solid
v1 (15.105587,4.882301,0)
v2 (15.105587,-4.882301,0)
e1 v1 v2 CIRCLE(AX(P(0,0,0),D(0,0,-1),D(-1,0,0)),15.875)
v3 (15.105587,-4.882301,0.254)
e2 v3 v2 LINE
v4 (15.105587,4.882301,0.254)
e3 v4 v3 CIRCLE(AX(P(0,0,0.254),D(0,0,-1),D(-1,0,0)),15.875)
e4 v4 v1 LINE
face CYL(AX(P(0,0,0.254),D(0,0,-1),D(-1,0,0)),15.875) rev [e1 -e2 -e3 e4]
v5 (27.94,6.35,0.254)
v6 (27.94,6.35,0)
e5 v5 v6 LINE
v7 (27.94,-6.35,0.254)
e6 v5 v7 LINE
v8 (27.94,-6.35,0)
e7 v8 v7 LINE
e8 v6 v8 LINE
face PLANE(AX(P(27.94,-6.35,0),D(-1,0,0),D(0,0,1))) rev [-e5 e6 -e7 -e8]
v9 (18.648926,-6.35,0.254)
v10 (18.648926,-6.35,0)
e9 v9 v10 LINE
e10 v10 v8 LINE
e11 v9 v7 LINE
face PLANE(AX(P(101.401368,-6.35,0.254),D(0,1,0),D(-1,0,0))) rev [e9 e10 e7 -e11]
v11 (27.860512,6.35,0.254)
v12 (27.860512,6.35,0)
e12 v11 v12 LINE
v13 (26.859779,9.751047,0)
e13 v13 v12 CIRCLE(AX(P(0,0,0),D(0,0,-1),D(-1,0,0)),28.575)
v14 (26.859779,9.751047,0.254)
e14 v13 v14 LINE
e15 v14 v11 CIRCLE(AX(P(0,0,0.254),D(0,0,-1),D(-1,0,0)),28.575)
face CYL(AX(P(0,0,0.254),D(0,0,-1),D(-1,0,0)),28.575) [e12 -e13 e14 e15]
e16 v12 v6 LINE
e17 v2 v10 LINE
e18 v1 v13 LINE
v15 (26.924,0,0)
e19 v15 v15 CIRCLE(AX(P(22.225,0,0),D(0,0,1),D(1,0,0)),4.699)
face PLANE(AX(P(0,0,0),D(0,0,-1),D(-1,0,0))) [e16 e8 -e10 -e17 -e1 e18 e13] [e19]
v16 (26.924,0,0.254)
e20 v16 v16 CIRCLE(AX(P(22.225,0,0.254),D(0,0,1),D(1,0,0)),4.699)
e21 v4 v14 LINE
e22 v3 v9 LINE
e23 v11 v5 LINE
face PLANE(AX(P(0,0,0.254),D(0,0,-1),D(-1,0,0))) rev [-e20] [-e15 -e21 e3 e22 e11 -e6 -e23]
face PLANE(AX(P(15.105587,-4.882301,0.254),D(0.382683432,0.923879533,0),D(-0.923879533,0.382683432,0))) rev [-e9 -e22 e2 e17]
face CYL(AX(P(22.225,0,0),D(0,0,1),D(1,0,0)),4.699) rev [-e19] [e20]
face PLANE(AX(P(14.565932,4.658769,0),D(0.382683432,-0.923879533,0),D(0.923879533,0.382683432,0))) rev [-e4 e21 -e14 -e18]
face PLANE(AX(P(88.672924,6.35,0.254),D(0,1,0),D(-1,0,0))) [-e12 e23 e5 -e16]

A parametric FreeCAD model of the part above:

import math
import FreeCAD as App
import Part
import Sketcher
Q = App.Units.Quantity


def add_polygon(sketch, points):
    """Adds a closed chain of lines whose ends are joined by coincident constraints."""
    first, n = sketch.GeometryCount, len(points)
    for a, b in zip(points, points[1:] + points[:1]):
        sketch.addGeometry(Part.LineSegment(App.Vector(*a, 0), App.Vector(*b, 0)), False)
    for i in range(n):
        sketch.addConstraint(Sketcher.Constraint("Coincident", first + i, 2, first + (i + 1) % n, 1))

doc = App.newDocument("Part")
body = doc.addObject("PartDesign::Body", "Body")

sketch1 = body.newObject("Sketcher::SketchObject", "Sketch")
sketch1.AttachmentSupport = (doc.getObject("XY_Plane"), [""])
sketch1.MapMode = "FlatFace"
sketch1.addGeometry([
    Part.LineSegment(App.Vector(67.2, 76.2, 0), App.Vector(8.7, 17.7, 0)),
    Part.LineSegment(App.Vector(8.7, 17.7, 0), App.Vector(7.2, 14.1, 0)),
    Part.ArcOfCircle(Part.Circle(App.Vector(0, 0, 0), App.Vector(0, 0, 1), 15.9), math.radians(-18), math.radians(63)),
    Part.LineSegment(App.Vector(15.1, -4.9, 0), App.Vector(18.6, -6.3, 0)),
    Part.LineSegment(App.Vector(18.6, -6.3, 0), App.Vector(101.4, -6.3, 0)),
    Part.ArcOfCircle(Part.Circle(App.Vector(0, 0, 0), App.Vector(0, 0, 1), 101.6), math.radians(-4), math.radians(49)),
    Part.ArcOfCircle(Part.Circle(App.Vector(0, 0, 0), App.Vector(0, 0, 1), 88.9), math.radians(4), math.radians(41)),
    Part.LineSegment(App.Vector(88.7, 6.3, 0), App.Vector(27.9, 6.3, 0)),
    Part.ArcOfCircle(Part.Circle(App.Vector(0, 0, 0), App.Vector(0, 0, 1), 28.6), math.radians(12.84), math.radians(32.16)),
    Part.LineSegment(App.Vector(24.2, 15.2, 0), App.Vector(67.2, 58.2, 0)),
], False)
sketch1.addConstraint([
    Sketcher.Constraint("Coincident", 0, 2, 1, 1),
    Sketcher.Constraint("Coincident", 1, 2, 2, 2),
    Sketcher.Constraint("Coincident", 2, 1, 3, 1),
    Sketcher.Constraint("Coincident", 3, 2, 4, 1),
    Sketcher.Constraint("Coincident", 4, 2, 5, 1),
    Sketcher.Constraint("Coincident", 5, 2, 0, 1),
    Sketcher.Constraint("Coincident", 6, 1, 7, 1),
    Sketcher.Constraint("Coincident", 7, 2, 8, 1),
    Sketcher.Constraint("Coincident", 8, 2, 9, 1),
    Sketcher.Constraint("Coincident", 9, 2, 6, 2),
    Sketcher.Constraint("Horizontal", 4),
    Sketcher.Constraint("Horizontal", 7),
    Sketcher.Constraint("Coincident", 2, 3, -1, 1),
    Sketcher.Constraint("Coincident", 5, 3, -1, 1),
    Sketcher.Constraint("Coincident", 6, 3, -1, 1),
    Sketcher.Constraint("Coincident", 8, 3, -1, 1),
    Sketcher.Constraint("Perpendicular", 1, 3),
    Sketcher.Constraint("Parallel", 0, 9),
    Sketcher.Constraint("Equal", 1, 3),
    Sketcher.Constraint("Radius", 5, Q("4 in")),
    Sketcher.Constraint("Radius", 6, Q("3.5 in")),
    Sketcher.Constraint("Angle", 0, Q("-135 deg")),
    Sketcher.Constraint("Radius", 2, Q("0.625 in")),
    Sketcher.Constraint("Radius", 8, Q("1.125 in")),
    Sketcher.Constraint("Angle", 1, Q("-112.5 deg")),
    Sketcher.Constraint("DistanceY", 4, 2, 6, 1, Q("0.5 in")),
    Sketcher.Constraint("DistanceY", 3, 2, -1, 1, Q("0.25 in")),
    Sketcher.Constraint("DistanceY", 2, 1, -1, 1, 4.882301),
    Sketcher.Constraint("DistanceY", -1, 1, 9, 2, 58.211098),
    Sketcher.Constraint("DistanceX", 5, 2, 4, 2, 34.189901),
])
pad1 = body.newObject("PartDesign::Pad", "Pad")
pad1.Profile = sketch1
pad1.Length = Q("0.01 in")

sketch2 = body.newObject("Sketcher::SketchObject", "Sketch001")
sketch2.AttachmentSupport = (doc.getObject("XY_Plane"), [""])
sketch2.MapMode = "FlatFace"
sketch2.AttachmentOffset = App.Placement(App.Vector(0, 0, 0.01 * 25.4), App.Rotation())
sketch2.addGeometry([
    Part.Circle(App.Vector(22.2, 0, 0), App.Vector(0, 0, 1), 4.7),
    Part.Circle(App.Vector(36.2, 0, 0), App.Vector(0, 0, 1), 4.7),
    Part.Circle(App.Vector(61.7, 0, 0), App.Vector(0, 0, 1), 4.7),
    Part.Circle(App.Vector(75.7, 0, 0), App.Vector(0, 0, 1), 4.7),
    Part.Circle(App.Vector(95.2, 0, 0), App.Vector(0, 0, 1), 4.7),
    Part.Circle(App.Vector(15.7, 15.7, 0), App.Vector(0, 0, 1), 4.7),
    Part.Circle(App.Vector(25.6, 25.6, 0), App.Vector(0, 0, 1), 4.7),
    Part.Circle(App.Vector(43.6, 43.6, 0), App.Vector(0, 0, 1), 4.7),
    Part.Circle(App.Vector(53.5, 53.5, 0), App.Vector(0, 0, 1), 4.7),
    Part.Circle(App.Vector(92, 24.7, 0), App.Vector(0, 0, 1), 4.7),
    Part.Circle(App.Vector(82.5, 47.6, 0), App.Vector(0, 0, 1), 4.7),
    Part.Circle(App.Vector(67.4, 67.4, 0), App.Vector(0, 0, 1), 4.7),
], False)
sketch2.addConstraint([
    Sketcher.Constraint("Equal", 0, 1),
    Sketcher.Constraint("Equal", 1, 2),
    Sketcher.Constraint("Equal", 2, 3),
    Sketcher.Constraint("Equal", 3, 4),
    Sketcher.Constraint("Equal", 4, 5),
    Sketcher.Constraint("Equal", 5, 6),
    Sketcher.Constraint("Equal", 6, 7),
    Sketcher.Constraint("Equal", 7, 8),
    Sketcher.Constraint("Equal", 8, 9),
    Sketcher.Constraint("Equal", 9, 10),
    Sketcher.Constraint("Equal", 10, 11),
    Sketcher.Constraint("PointOnObject", 0, 3, -1),
    Sketcher.Constraint("PointOnObject", 1, 3, -1),
    Sketcher.Constraint("PointOnObject", 2, 3, -1),
    Sketcher.Constraint("PointOnObject", 3, 3, -1),
    Sketcher.Constraint("PointOnObject", 4, 3, -1),
    Sketcher.Constraint("Diameter", 0, Q("0.37 in")),
    Sketcher.Constraint("DistanceX", -1, 1, 2, 3, Q("2.43 in")),
    Sketcher.Constraint("DistanceX", -1, 1, 3, 3, Q("2.98 in")),
    Sketcher.Constraint("DistanceX", -1, 1, 4, 3, Q("3.75 in")),
    Sketcher.Constraint("DistanceX", 0, 3, 1, 3, Q("0.55 in")),
    Sketcher.Constraint("DistanceX", -1, 1, 0, 3, Q("0.875 in")),
    Sketcher.Constraint("DistanceY", -1, 1, 10, 3, Q("1.875 in")),
    Sketcher.Constraint("DistanceX", 11, 3, 10, 3, 15.136999),
    Sketcher.Constraint("DistanceX", -1, 1, 5, 3, 15.715448),
    Sketcher.Constraint("DistanceY", -1, 1, 5, 3, 15.715448),
    Sketcher.Constraint("DistanceX", -1, 1, 6, 3, 25.59373),
    Sketcher.Constraint("DistanceY", -1, 1, 6, 3, 25.59373),
    Sketcher.Constraint("DistanceX", -1, 1, 10, 3, 82.48892),
    Sketcher.Constraint("DistanceY", -1, 1, 11, 3, 67.351921),
    Sketcher.Constraint("DistanceX", 7, 3, 8, 3, 9.878282),
    Sketcher.Constraint("DistanceY", 7, 3, 8, 3, 9.878282),
    Sketcher.Constraint("DistanceX", 5, 3, 8, 3, 37.806878),
    Sketcher.Constraint("DistanceY", 5, 3, 8, 3, 37.806878),
    Sketcher.Constraint("DistanceX", 8, 3, 9, 3, 38.482108),
    Sketcher.Constraint("DistanceY", 9, 3, 7, 3, 18.991531),
])
pocket1 = body.newObject("PartDesign::Pocket", "Pocket")
pocket1.Profile = sketch2
pocket1.Type = "ThroughAll"

sketch3 = body.newObject("Sketcher::SketchObject", "Sketch002")
sketch3.AttachmentSupport = (doc.getObject("XY_Plane"), [""])
sketch3.MapMode = "FlatFace"
sketch3.AttachmentOffset = App.Placement(App.Vector(0, 0, 0.01 * 25.4), App.Rotation())
add_polygon(sketch3, [(17.1, 26), (15.3, 24.2), (15.7, 23.8), (17.5, 25.6)])
add_polygon(sketch3, [(45, 54), (43.2, 52.2), (43.6, 51.7), (45.4, 53.5)])
add_polygon(sketch3, [(27.9, -5.7), (27.9, -6.3), (30.5, -6.3), (30.5, -5.7)])
add_polygon(sketch3, [(67.4, -5.7), (67.4, -6.3), (70, -6.3), (70, -5.7)])
add_polygon(sketch3, [(31, 40), (29.2, 38.2), (29.7, 37.8), (31.5, 39.6)])
add_polygon(sketch3, [(56.8, 65.8), (55, 64), (55.5, 63.6), (57.3, 65.4)])
add_polygon(sketch3, [(47.7, -5.7), (47.7, -6.3), (50.2, -6.3), (50.2, -5.7)])
add_polygon(sketch3, [(84.2, -5.7), (84.2, -6.3), (86.7, -6.3), (86.7, -5.7)])
add_polygon(sketch3, [(99.9, 14.4), (100.3, 11.9), (101.5, 12.1), (101.2, 14.6)])
add_polygon(sketch3, [(93.8, 37.5), (94.9, 38), (94, 40.3), (92.8, 39.8)])
add_polygon(sketch3, [(79.3, 62.5), (80.9, 60.5), (81.9, 61.2), (80.3, 63.2)])
add_polygon(sketch3, [(13.6, 7), (14.6, 4.7), (15.7, 5.1), (14.8, 7.5)])
sketch3.addConstraint([
    Sketcher.Constraint("Vertical", 8),
    Sketcher.Constraint("Horizontal", 9),
    Sketcher.Constraint("Vertical", 10),
    Sketcher.Constraint("Horizontal", 11),
    Sketcher.Constraint("Vertical", 12),
    Sketcher.Constraint("Horizontal", 13),
    Sketcher.Constraint("Vertical", 14),
    Sketcher.Constraint("Horizontal", 15),
    Sketcher.Constraint("Vertical", 24),
    Sketcher.Constraint("Horizontal", 25),
    Sketcher.Constraint("Vertical", 26),
    Sketcher.Constraint("Horizontal", 27),
    Sketcher.Constraint("Vertical", 28),
    Sketcher.Constraint("Horizontal", 29),
    Sketcher.Constraint("Vertical", 30),
    Sketcher.Constraint("Horizontal", 31),
    Sketcher.Constraint("Perpendicular", 0, 1),
    Sketcher.Constraint("Perpendicular", 1, 2),
    Sketcher.Constraint("Perpendicular", 2, 3),
    Sketcher.Constraint("Perpendicular", 3, 4),
    Sketcher.Constraint("Perpendicular", 4, 5),
    Sketcher.Constraint("Perpendicular", 5, 6),
    Sketcher.Constraint("Perpendicular", 6, 7),
    Sketcher.Constraint("Perpendicular", 7, 16),
    Sketcher.Constraint("Perpendicular", 16, 17),
    Sketcher.Constraint("Perpendicular", 17, 18),
    Sketcher.Constraint("Perpendicular", 18, 19),
    Sketcher.Constraint("Perpendicular", 19, 20),
    Sketcher.Constraint("Perpendicular", 20, 21),
    Sketcher.Constraint("Perpendicular", 21, 22),
    Sketcher.Constraint("Perpendicular", 22, 23),
    Sketcher.Constraint("Perpendicular", 32, 33),
    Sketcher.Constraint("Perpendicular", 33, 34),
    Sketcher.Constraint("Perpendicular", 34, 35),
    Sketcher.Constraint("Perpendicular", 36, 37),
    Sketcher.Constraint("Perpendicular", 37, 38),
    Sketcher.Constraint("Perpendicular", 38, 39),
    Sketcher.Constraint("Perpendicular", 40, 41),
    Sketcher.Constraint("Perpendicular", 41, 42),
    Sketcher.Constraint("Perpendicular", 42, 43),
    Sketcher.Constraint("Parallel", 39, 44),
    Sketcher.Constraint("Perpendicular", 44, 45),
    Sketcher.Constraint("Perpendicular", 45, 46),
    Sketcher.Constraint("Perpendicular", 46, 47),
    Sketcher.Constraint("Horizontal", 9, 2, 12, 2),
    Sketcher.Constraint("Horizontal", 11, 2, 14, 2),
    Sketcher.Constraint("Horizontal", 13, 2, 24, 2),
    Sketcher.Constraint("Horizontal", 15, 2, 26, 2),
    Sketcher.Constraint("Horizontal", 25, 2, 28, 2),
    Sketcher.Constraint("Horizontal", 27, 2, 30, 2),
    Sketcher.Constraint("Equal", 11, 13),
    Sketcher.Constraint("Equal", 15, 25),
    Sketcher.Constraint("Equal", 27, 29),
    Sketcher.Constraint("Equal", 2, 4),
    Sketcher.Constraint("Equal", 3, 5),
    Sketcher.Constraint("Equal", 6, 16),
    Sketcher.Constraint("Equal", 7, 17),
    Sketcher.Constraint("Equal", 18, 20),
    Sketcher.Constraint("Equal", 19, 21),
    Sketcher.Constraint("Equal", 22, 32),
    Sketcher.Constraint("Equal", 35, 36),
    Sketcher.Constraint("Equal", 34, 37),
    Sketcher.Constraint("Equal", 39, 40),
    Sketcher.Constraint("Equal", 38, 41),
    Sketcher.Constraint("Equal", 42, 44),
    Sketcher.Constraint("Equal", 43, 45),
    Sketcher.Constraint("DistanceX", 9, 1, 9, 2, Q("0.1 in")),
    Sketcher.Constraint("Angle", 0, Q("-135 deg")),
    Sketcher.Constraint("Distance", 0, Q("0.1 in")),
    Sketcher.Constraint("DistanceX", -1, 1, 8, 2, Q("1.1 in")),
    Sketcher.Constraint("Angle", 32, Q("-82.5 deg")),
    Sketcher.Constraint("Angle", 36, Q("22.5 deg")),
    Sketcher.Constraint("Angle", 40, Q("-52.5 deg")),
    Sketcher.Constraint("Distance", 33, Q("0.05 in")),
    Sketcher.Constraint("DistanceY", 8, 2, 8, 1, Q("0.025 in")),
    Sketcher.Constraint("DistanceY", 8, 2, -1, 1, Q("0.25 in")),
    Sketcher.Constraint("DistanceX", 13, 2, 28, 2, Q("0.56 in")),
    Sketcher.Constraint("Distance", 1, Q("0.025 in")),
    Sketcher.Constraint("DistanceX", -1, 1, 12, 2, Q("2.655 in")),
    Sketcher.Constraint("DistanceX", -1, 1, 24, 2, Q("1.8775 in")),
    Sketcher.Constraint("DistanceX", -1, 1, 2, 2, 17.511499),
    Sketcher.Constraint("DistanceX", -1, 1, 32, 2, 100.266999),
    Sketcher.Constraint("DistanceX", 16, 2, 4, 2, 13.964298),
    Sketcher.Constraint("DistanceY", 16, 2, 4, 2, 13.964298),
    Sketcher.Constraint("DistanceX", 0, 2, 16, 2, 13.964298),
    Sketcher.Constraint("DistanceY", 0, 2, 16, 2, 13.964298),
    Sketcher.Constraint("DistanceY", 6, 2, 20, 2, 10.5069),
    Sketcher.Constraint("DistanceX", 7, 2, 21, 2, 10.5069),
    Sketcher.Constraint("DistanceY", 35, 2, 36, 2, 23.512602),
    Sketcher.Constraint("DistanceX", 36, 2, 33, 2, 6.587302),
    Sketcher.Constraint("DistanceY", 37, 2, 41, 2, 20.932198),
    Sketcher.Constraint("DistanceY", 41, 2, 22, 2, 4.147099),
    Sketcher.Constraint("DistanceY", 46, 2, 2, 2, 18.102299),
    Sketcher.Constraint("DistanceY", -1, 1, 0, 2, 24.246692),
    Sketcher.Constraint("DistanceX", -1, 1, 42, 2, 80.335352),
    Sketcher.Constraint("DistanceX", -1, 1, 45, 2, 15.739259),
])
pocket2 = body.newObject("PartDesign::Pocket", "Pocket001")
pocket2.Profile = sketch3
pocket2.Type = "ThroughAll"

sketch4 = body.newObject("Sketcher::SketchObject", "Sketch003")
sketch4.AttachmentSupport = (doc.getObject("XY_Plane"), [""])
sketch4.MapMode = "FlatFace"
sketch4.AttachmentOffset = App.Placement(App.Vector(0, 0, 0.01 * 25.4), App.Rotation())
add_polygon(sketch4, [(-6, 90), (-6, -20), (115, -20), (115, 90)])
add_polygon(sketch4, [(12, -8), (12, 3), (28, 10), (28, -8)])
sketch4.addConstraint([
    Sketcher.Constraint("Vertical", 0),
    Sketcher.Constraint("Horizontal", 1),
    Sketcher.Constraint("Vertical", 2),
    Sketcher.Constraint("Horizontal", 3),
    Sketcher.Constraint("Vertical", 4),
    Sketcher.Constraint("Vertical", 6),
    Sketcher.Constraint("Horizontal", 7),
    Sketcher.Constraint("Distance", 5, Q("0.7 in")),
    Sketcher.Constraint("DistanceX", -1, 1, 5, 2, Q("1.1 in")),
    Sketcher.Constraint("DistanceY", 6, 2, -1, 1, Q("0.3 in")),
    Sketcher.Constraint("Angle", 5, Q("22.5 deg")),
    Sketcher.Constraint("DistanceX", 1, 1, 1, 2, 121.447),
    Sketcher.Constraint("DistanceY", 0, 2, 0, 1, 109.618),
    Sketcher.Constraint("DistanceY", 6, 2, 6, 1, 17.818489),
    Sketcher.Constraint("DistanceX", 0, 2, -1, 1, 6.309),
    Sketcher.Constraint("DistanceY", 0, 2, -1, 1, 19.888),
])
pocket3 = body.newObject("PartDesign::Pocket", "Pocket002")
pocket3.Profile = sketch4
pocket3.Type = "ThroughAll"

doc.recompute()
